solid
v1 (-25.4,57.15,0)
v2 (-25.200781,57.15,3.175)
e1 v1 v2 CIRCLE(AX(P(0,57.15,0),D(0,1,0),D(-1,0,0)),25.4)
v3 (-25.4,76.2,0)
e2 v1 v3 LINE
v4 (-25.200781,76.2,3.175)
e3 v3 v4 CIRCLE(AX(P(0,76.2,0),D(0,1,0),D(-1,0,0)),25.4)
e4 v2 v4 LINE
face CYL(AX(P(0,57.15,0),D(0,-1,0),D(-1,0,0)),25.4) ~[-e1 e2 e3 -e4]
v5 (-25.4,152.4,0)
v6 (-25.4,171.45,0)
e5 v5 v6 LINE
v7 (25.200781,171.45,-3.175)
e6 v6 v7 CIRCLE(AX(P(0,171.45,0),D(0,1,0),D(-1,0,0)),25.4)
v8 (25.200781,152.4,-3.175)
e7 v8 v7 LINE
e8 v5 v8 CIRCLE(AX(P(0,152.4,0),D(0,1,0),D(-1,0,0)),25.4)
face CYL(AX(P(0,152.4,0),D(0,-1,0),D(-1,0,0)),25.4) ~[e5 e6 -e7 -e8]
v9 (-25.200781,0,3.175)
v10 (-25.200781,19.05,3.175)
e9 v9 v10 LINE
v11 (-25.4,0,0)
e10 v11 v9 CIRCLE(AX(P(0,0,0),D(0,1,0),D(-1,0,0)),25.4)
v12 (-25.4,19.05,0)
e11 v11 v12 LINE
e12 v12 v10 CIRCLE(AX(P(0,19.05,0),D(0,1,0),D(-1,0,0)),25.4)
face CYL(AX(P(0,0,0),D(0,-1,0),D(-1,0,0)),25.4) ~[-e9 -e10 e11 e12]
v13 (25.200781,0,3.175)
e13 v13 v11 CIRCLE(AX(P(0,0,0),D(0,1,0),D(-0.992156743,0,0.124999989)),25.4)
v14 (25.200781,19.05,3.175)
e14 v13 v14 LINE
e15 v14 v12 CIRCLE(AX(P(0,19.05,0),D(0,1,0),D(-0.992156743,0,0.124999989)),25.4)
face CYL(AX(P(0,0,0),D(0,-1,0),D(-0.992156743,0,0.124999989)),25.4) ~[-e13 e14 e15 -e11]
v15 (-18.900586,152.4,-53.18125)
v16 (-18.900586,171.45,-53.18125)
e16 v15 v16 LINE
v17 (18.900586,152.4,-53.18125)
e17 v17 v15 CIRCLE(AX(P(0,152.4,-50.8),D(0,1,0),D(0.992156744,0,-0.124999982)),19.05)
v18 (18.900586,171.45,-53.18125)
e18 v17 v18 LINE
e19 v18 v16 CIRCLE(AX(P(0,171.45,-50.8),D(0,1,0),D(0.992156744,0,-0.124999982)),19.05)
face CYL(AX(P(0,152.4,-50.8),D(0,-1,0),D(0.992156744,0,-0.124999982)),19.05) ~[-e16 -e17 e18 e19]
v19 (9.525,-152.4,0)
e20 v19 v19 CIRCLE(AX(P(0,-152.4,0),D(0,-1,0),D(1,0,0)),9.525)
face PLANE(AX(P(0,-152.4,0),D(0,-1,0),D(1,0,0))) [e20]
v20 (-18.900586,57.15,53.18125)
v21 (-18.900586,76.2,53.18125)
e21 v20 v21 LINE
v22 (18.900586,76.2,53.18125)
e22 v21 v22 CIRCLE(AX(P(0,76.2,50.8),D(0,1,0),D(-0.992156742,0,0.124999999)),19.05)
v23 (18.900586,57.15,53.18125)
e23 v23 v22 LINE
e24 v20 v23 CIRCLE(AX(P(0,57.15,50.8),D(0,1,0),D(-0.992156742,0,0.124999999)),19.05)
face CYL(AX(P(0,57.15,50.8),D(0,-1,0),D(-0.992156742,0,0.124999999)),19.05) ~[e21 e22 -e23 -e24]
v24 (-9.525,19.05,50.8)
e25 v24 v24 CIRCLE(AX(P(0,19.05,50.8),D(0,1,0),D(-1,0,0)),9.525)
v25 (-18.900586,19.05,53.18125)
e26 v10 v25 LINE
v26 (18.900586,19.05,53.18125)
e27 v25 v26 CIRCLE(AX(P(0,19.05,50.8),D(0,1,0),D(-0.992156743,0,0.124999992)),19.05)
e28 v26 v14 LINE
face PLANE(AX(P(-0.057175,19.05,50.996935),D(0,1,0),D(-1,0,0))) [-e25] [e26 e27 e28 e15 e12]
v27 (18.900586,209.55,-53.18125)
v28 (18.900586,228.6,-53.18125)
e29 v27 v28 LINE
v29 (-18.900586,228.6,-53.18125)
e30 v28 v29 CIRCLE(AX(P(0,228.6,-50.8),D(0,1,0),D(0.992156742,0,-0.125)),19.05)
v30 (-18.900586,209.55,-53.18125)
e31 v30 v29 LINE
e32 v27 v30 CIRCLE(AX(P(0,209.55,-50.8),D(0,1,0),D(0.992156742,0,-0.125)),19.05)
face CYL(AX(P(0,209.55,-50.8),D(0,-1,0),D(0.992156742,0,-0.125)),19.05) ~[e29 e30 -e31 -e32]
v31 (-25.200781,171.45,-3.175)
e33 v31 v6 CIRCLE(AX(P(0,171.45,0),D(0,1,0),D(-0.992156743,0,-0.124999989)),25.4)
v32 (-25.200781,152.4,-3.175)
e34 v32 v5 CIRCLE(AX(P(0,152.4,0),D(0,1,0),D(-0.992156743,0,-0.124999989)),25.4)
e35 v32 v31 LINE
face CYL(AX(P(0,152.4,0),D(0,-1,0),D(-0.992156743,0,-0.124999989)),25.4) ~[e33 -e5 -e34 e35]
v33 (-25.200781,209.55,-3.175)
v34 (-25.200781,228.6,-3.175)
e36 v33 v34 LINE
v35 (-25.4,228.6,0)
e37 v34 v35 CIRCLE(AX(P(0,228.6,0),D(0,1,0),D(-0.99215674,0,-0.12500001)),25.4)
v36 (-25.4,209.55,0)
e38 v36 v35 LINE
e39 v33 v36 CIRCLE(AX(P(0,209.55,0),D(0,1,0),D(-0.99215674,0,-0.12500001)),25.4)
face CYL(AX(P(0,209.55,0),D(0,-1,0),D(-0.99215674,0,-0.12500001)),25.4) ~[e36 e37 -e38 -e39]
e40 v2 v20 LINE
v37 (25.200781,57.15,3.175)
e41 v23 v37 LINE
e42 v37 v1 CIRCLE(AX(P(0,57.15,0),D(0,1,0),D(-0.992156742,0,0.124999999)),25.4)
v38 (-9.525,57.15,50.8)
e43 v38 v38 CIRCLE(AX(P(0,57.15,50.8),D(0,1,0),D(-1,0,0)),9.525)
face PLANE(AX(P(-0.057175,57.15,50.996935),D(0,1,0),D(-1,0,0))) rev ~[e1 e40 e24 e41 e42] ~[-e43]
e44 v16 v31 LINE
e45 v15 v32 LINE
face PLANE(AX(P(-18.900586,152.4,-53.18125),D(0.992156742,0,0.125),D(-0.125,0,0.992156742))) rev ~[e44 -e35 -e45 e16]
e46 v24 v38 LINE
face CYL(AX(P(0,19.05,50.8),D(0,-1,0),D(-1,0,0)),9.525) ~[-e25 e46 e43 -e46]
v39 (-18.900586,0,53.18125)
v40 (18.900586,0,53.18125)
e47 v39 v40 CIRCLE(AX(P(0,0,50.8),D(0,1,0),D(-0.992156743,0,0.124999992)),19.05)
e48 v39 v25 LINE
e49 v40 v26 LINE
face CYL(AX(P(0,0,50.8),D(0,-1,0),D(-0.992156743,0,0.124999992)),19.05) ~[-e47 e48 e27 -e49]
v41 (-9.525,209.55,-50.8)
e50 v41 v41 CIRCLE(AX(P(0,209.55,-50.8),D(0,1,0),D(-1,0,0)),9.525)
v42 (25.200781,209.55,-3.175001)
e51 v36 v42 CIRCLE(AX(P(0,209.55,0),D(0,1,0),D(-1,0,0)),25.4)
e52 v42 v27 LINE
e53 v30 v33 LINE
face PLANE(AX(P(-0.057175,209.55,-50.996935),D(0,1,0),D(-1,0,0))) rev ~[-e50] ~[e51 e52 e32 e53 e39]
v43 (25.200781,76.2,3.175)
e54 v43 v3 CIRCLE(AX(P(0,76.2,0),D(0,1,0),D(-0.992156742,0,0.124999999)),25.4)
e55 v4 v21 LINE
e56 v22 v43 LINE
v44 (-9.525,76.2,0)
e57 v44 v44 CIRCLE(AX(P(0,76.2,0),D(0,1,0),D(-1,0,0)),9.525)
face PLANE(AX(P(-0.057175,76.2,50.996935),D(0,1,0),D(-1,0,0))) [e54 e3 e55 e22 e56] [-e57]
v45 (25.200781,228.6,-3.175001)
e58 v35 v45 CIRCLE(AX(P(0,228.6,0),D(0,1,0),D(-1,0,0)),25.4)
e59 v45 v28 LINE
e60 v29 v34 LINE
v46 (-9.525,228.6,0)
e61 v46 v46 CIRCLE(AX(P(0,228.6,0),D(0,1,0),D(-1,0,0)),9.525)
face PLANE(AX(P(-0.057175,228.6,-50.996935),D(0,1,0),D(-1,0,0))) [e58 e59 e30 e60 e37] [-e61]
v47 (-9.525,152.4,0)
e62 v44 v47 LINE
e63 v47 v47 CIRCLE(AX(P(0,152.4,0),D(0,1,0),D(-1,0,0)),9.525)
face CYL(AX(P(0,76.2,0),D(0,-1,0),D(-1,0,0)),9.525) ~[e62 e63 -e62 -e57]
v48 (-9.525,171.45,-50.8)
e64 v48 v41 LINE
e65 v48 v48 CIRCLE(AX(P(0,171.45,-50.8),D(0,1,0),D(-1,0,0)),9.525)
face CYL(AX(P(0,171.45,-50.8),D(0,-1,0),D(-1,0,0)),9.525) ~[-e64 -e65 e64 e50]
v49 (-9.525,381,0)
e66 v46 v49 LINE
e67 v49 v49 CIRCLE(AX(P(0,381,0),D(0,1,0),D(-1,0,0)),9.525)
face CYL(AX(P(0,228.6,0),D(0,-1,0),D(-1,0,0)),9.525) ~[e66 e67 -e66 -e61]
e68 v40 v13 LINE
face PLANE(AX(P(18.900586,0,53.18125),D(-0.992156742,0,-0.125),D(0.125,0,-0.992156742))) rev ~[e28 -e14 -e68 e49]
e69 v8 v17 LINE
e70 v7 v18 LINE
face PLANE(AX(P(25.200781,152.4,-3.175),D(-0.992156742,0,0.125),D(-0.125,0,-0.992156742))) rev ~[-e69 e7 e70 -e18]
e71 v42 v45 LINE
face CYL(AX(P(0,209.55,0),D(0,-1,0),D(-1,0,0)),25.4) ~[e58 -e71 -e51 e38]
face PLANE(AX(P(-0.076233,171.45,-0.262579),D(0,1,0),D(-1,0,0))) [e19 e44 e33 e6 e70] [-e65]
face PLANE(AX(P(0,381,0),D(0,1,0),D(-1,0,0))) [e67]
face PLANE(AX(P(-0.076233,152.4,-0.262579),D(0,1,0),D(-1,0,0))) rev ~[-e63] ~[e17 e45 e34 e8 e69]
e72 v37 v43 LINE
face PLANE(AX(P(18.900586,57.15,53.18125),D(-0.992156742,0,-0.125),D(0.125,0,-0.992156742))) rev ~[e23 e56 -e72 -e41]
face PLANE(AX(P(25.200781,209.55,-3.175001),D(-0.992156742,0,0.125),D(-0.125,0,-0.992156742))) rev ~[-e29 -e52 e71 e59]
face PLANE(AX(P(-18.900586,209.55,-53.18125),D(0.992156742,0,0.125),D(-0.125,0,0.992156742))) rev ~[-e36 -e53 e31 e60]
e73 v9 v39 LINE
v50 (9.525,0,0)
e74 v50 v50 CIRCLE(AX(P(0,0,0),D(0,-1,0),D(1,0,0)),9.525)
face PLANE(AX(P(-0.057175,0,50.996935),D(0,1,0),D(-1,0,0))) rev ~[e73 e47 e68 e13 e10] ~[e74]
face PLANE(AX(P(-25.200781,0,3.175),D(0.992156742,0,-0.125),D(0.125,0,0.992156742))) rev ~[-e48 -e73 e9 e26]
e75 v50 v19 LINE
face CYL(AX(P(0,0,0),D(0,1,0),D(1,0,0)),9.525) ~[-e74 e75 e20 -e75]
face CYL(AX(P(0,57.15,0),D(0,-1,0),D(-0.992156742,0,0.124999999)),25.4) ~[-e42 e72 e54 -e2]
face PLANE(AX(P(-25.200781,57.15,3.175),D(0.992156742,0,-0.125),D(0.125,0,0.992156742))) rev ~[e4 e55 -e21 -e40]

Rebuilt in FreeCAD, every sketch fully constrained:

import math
import FreeCAD as App
import Part
import Sketcher

V = App.Vector
Q = App.Units.Quantity

doc = App.newDocument("Part")
body = doc.addObject("PartDesign::Body", "Body")

# Sketch on XZ plane
sketch1 = body.newObject("Sketcher::SketchObject", "Sketch")
sketch1.AttachmentSupport = (doc.getObject("XZ_Plane"), [""])
sketch1.MapMode = "FlatFace"
sketch1.addGeometry(Part.Circle(V(0, 0, 0), V(0, 0, 1), 10), False)
sketch1.addConstraint([
    Sketcher.Constraint("Coincident", 0, 3, -1, 1),
    Sketcher.Constraint("Diameter", 0, Q("0.75 in")),
])
pad1 = body.newObject("PartDesign::Pad", "Pad")
pad1.Profile = sketch1
pad1.Length = Q("6 in")

# Sketch on XZ plane
sketch2 = body.newObject("Sketcher::SketchObject", "Sketch001")
sketch2.AttachmentSupport = (doc.getObject("XZ_Plane"), [""])
sketch2.MapMode = "FlatFace"
sketch2.addGeometry([
    Part.ArcOfCircle(Part.Circle(V(0, 50.8, 0), V(0, 0, 1), 19.1), math.radians(7), math.radians(173)),  # 0
    Part.LineSegment(V(18.9, 53.2, 0), V(25.2, 3.2, 0)),  # 1
    Part.ArcOfCircle(Part.Circle(V(0, 0, 0), V(0, 0, 1), 25.4), math.radians(180), math.radians(367)),  # 2
    Part.ArcOfCircle(Part.Circle(V(0, 0, 0), V(0, 0, 1), 25.4), math.radians(172.82), math.radians(180)),  # 3
    Part.LineSegment(V(-25.2, 3.2, 0), V(-18.9, 53.2, 0)),  # 4
], False)
sketch2.addConstraint([
    Sketcher.Constraint("Tangent", 0, 1, 1, 1),
    Sketcher.Constraint("Tangent", 1, 2, 2, 2),
    Sketcher.Constraint("Tangent", 2, 1, 3, 2),
    Sketcher.Constraint("Tangent", 3, 1, 4, 1),
    Sketcher.Constraint("Tangent", 4, 2, 0, 2),
    Sketcher.Constraint("Coincident", 2, 3, -1, 1),
    Sketcher.Constraint("Equal", 2, 3),
    Sketcher.Constraint("PointOnObject", 0, 3, -2),
    Sketcher.Constraint("PointOnObject", 2, 1, -1),
    Sketcher.Constraint("Radius", 2, Q("1 in")),
    Sketcher.Constraint("Radius", 0, Q("0.75 in")),
    Sketcher.Constraint("DistanceY", -1, 1, 0, 3, Q("2 in")),
])
pad2 = body.newObject("PartDesign::Pad", "Pad001")
pad2.Profile = sketch2
pad2.Length = Q("0.75 in")
pad2.Reversed = True

# Sketch on XZ plane
sketch3 = body.newObject("Sketcher::SketchObject", "Sketch002")
sketch3.AttachmentSupport = (doc.getObject("XZ_Plane"), [""])
sketch3.MapMode = "FlatFace"
sketch3.AttachmentOffset = App.Placement(V(0, 0, -0.75 * 25.4), App.Rotation())
sketch3.addGeometry(Part.Circle(V(0, 51, 0), V(0, 0, 1), 10), False)
sketch3.addConstraint([
    Sketcher.Constraint("PointOnObject", 0, 3, -2),
    Sketcher.Constraint("Diameter", 0, Q("0.75 in")),
    Sketcher.Constraint("DistanceY", -1, 1, 0, 3, Q("2 in")),
])
pad3 = body.newObject("PartDesign::Pad", "Pad002")
pad3.Profile = sketch3
pad3.Length = Q("1.5 in")
pad3.Reversed = True

# Sketch on XZ plane
sketch4 = body.newObject("Sketcher::SketchObject", "Sketch003")
sketch4.AttachmentSupport = (doc.getObject("XZ_Plane"), [""])
sketch4.MapMode = "FlatFace"
sketch4.AttachmentOffset = App.Placement(V(0, 0, -2.25 * 25.4), App.Rotation())
sketch4.addGeometry([
    Part.ArcOfCircle(Part.Circle(V(0, 50.8, 0), V(0, 0, 1), 19.1), math.radians(7), math.radians(173)),  # 0
    Part.LineSegment(V(18.9, 53.2, 0), V(25.2, 3.2, 0)),  # 1
    Part.ArcOfCircle(Part.Circle(V(0, 0, 0), V(0, 0, 1), 25.4), math.radians(180), math.radians(367)),  # 2
    Part.ArcOfCircle(Part.Circle(V(0, 0, 0), V(0, 0, 1), 25.4), math.radians(172.82), math.radians(180)),  # 3
    Part.LineSegment(V(-25.2, 3.2, 0), V(-18.9, 53.2, 0)),  # 4
], False)
sketch4.addConstraint([
    Sketcher.Constraint("Tangent", 0, 1, 1, 1),
    Sketcher.Constraint("Tangent", 1, 2, 2, 2),
    Sketcher.Constraint("Tangent", 2, 1, 3, 2),
    Sketcher.Constraint("Tangent", 3, 1, 4, 1),
    Sketcher.Constraint("Tangent", 4, 2, 0, 2),
    Sketcher.Constraint("Coincident", 2, 3, -1, 1),
    Sketcher.Constraint("Equal", 2, 3),
    Sketcher.Constraint("PointOnObject", 0, 3, -2),
    Sketcher.Constraint("PointOnObject", 2, 1, -1),
    Sketcher.Constraint("Radius", 2, Q("1 in")),
    Sketcher.Constraint("Radius", 0, Q("0.75 in")),
    Sketcher.Constraint("DistanceY", -1, 1, 0, 3, Q("2 in")),
])
pad4 = body.newObject("PartDesign::Pad", "Pad003")
pad4.Profile = sketch4
pad4.Length = Q("0.75 in")
pad4.Reversed = True

# Sketch on XZ plane
sketch5 = body.newObject("Sketcher::SketchObject", "Sketch004")
sketch5.AttachmentSupport = (doc.getObject("XZ_Plane"), [""])
sketch5.MapMode = "FlatFace"
sketch5.AttachmentOffset = App.Placement(V(0, 0, -3 * 25.4), App.Rotation())
sketch5.addGeometry(Part.Circle(V(0, 0, 0), V(0, 0, 1), 10), False)
sketch5.addConstraint([
    Sketcher.Constraint("Coincident", 0, 3, -1, 1),
    Sketcher.Constraint("Diameter", 0, Q("0.75 in")),
])
pad5 = body.newObject("PartDesign::Pad", "Pad004")
pad5.Profile = sketch5
pad5.Length = Q("3 in")
pad5.Reversed = True

# Sketch on XZ plane
sketch6 = body.newObject("Sketcher::SketchObject", "Sketch005")
sketch6.AttachmentSupport = (doc.getObject("XZ_Plane"), [""])
sketch6.MapMode = "FlatFace"
sketch6.AttachmentOffset = App.Placement(V(0, 0, -6 * 25.4), App.Rotation())
sketch6.addGeometry([
    Part.ArcOfCircle(Part.Circle(V(0, 0, 0), V(0, 0, 1), 25.4), math.radians(180), math.radians(187.18)),  # 0
    Part.ArcOfCircle(Part.Circle(V(0, 0, 0), V(0, 0, 1), 25.4), math.radians(-7), math.radians(180)),  # 1
    Part.LineSegment(V(25.2, -3.2, 0), V(18.9, -53.2, 0)),  # 2
    Part.ArcOfCircle(Part.Circle(V(0, -50.8, 0), V(0, 0, 1), 19.1), math.radians(-173), math.radians(-7)),  # 3
    Part.LineSegment(V(-18.9, -53.2, 0), V(-25.2, -3.2, 0)),  # 4
], False)
sketch6.addConstraint([
    Sketcher.Constraint("Tangent", 0, 1, 1, 2),
    Sketcher.Constraint("Tangent", 1, 1, 2, 1),
    Sketcher.Constraint("Tangent", 2, 2, 3, 2),
    Sketcher.Constraint("Tangent", 3, 1, 4, 1),
    Sketcher.Constraint("Tangent", 4, 2, 0, 2),
    Sketcher.Constraint("Coincident", 0, 3, -1, 1),
    Sketcher.Constraint("Equal", 0, 1),
    Sketcher.Constraint("PointOnObject", 3, 3, -2),
    Sketcher.Constraint("PointOnObject", 0, 1, -1),
    Sketcher.Constraint("Radius", 0, Q("1 in")),
    Sketcher.Constraint("Radius", 3, Q("0.75 in")),
    Sketcher.Constraint("DistanceY", 3, 3, -1, 1, Q("2 in")),
])
pad6 = body.newObject("PartDesign::Pad", "Pad005")
pad6.Profile = sketch6
pad6.Length = Q("0.75 in")
pad6.Reversed = True

# Sketch on XZ plane
sketch7 = body.newObject("Sketcher::SketchObject", "Sketch006")
sketch7.AttachmentSupport = (doc.getObject("XZ_Plane"), [""])
sketch7.MapMode = "FlatFace"
sketch7.AttachmentOffset = App.Placement(V(0, 0, -6.75 * 25.4), App.Rotation())
sketch7.addGeometry(Part.Circle(V(0, -51, 0), V(0, 0, 1), 10), False)
sketch7.addConstraint([
    Sketcher.Constraint("PointOnObject", 0, 3, -2),
    Sketcher.Constraint("Diameter", 0, Q("0.75 in")),
    Sketcher.Constraint("DistanceY", 0, 3, -1, 1, Q("2 in")),
])
pad7 = body.newObject("PartDesign::Pad", "Pad006")
pad7.Profile = sketch7
pad7.Length = Q("1.5 in")
pad7.Reversed = True

# Sketch on XZ plane
sketch8 = body.newObject("Sketcher::SketchObject", "Sketch007")
sketch8.AttachmentSupport = (doc.getObject("XZ_Plane"), [""])
sketch8.MapMode = "FlatFace"
sketch8.AttachmentOffset = App.Placement(V(0, 0, -8.25 * 25.4), App.Rotation())
sketch8.addGeometry([
    Part.ArcOfCircle(Part.Circle(V(0, -50.8, 0), V(0, 0, 1), 19.1), math.radians(-173), math.radians(-7)),  # 0
    Part.LineSegment(V(-18.9, -53.2, 0), V(-25.2, -3.2, 0)),  # 1
    Part.ArcOfCircle(Part.Circle(V(0, 0, 0), V(0, 0, 1), 25.4), math.radians(180), math.radians(187.18)),  # 2
    Part.ArcOfCircle(Part.Circle(V(0, 0, 0), V(0, 0, 1), 25.4), math.radians(-7), math.radians(180)),  # 3
    Part.LineSegment(V(25.2, -3.2, 0), V(18.9, -53.2, 0)),  # 4
], False)
sketch8.addConstraint([
    Sketcher.Constraint("Tangent", 0, 1, 1, 1),
    Sketcher.Constraint("Tangent", 1, 2, 2, 2),
    Sketcher.Constraint("Tangent", 2, 1, 3, 2),
    Sketcher.Constraint("Tangent", 3, 1, 4, 1),
    Sketcher.Constraint("Tangent", 4, 2, 0, 2),
    Sketcher.Constraint("Coincident", 2, 3, -1, 1),
    Sketcher.Constraint("Equal", 2, 3),
    Sketcher.Constraint("PointOnObject", 0, 3, -2),
    Sketcher.Constraint("PointOnObject", 2, 1, -1),
    Sketcher.Constraint("Radius", 2, Q("1 in")),
    Sketcher.Constraint("Radius", 0, Q("0.75 in")),
    Sketcher.Constraint("DistanceY", 0, 3, -1, 1, Q("2 in")),
])
pad8 = body.newObject("PartDesign::Pad", "Pad007")
pad8.Profile = sketch8
pad8.Length = Q("0.75 in")
pad8.Reversed = True

# Sketch on XZ plane
sketch9 = body.newObject("Sketcher::SketchObject", "Sketch008")
sketch9.AttachmentSupport = (doc.getObject("XZ_Plane"), [""])
sketch9.MapMode = "FlatFace"
sketch9.AttachmentOffset = App.Placement(V(0, 0, -9 * 25.4), App.Rotation())
sketch9.addGeometry(Part.Circle(V(0, 0, 0), V(0, 0, 1), 10), False)
sketch9.addConstraint([
    Sketcher.Constraint("Coincident", 0, 3, -1, 1),
    Sketcher.Constraint("Diameter", 0, Q("0.75 in")),
])
pad9 = body.newObject("PartDesign::Pad", "Pad008")
pad9.Profile = sketch9
pad9.Length = Q("6 in")
pad9.Reversed = True

doc.recompute()
